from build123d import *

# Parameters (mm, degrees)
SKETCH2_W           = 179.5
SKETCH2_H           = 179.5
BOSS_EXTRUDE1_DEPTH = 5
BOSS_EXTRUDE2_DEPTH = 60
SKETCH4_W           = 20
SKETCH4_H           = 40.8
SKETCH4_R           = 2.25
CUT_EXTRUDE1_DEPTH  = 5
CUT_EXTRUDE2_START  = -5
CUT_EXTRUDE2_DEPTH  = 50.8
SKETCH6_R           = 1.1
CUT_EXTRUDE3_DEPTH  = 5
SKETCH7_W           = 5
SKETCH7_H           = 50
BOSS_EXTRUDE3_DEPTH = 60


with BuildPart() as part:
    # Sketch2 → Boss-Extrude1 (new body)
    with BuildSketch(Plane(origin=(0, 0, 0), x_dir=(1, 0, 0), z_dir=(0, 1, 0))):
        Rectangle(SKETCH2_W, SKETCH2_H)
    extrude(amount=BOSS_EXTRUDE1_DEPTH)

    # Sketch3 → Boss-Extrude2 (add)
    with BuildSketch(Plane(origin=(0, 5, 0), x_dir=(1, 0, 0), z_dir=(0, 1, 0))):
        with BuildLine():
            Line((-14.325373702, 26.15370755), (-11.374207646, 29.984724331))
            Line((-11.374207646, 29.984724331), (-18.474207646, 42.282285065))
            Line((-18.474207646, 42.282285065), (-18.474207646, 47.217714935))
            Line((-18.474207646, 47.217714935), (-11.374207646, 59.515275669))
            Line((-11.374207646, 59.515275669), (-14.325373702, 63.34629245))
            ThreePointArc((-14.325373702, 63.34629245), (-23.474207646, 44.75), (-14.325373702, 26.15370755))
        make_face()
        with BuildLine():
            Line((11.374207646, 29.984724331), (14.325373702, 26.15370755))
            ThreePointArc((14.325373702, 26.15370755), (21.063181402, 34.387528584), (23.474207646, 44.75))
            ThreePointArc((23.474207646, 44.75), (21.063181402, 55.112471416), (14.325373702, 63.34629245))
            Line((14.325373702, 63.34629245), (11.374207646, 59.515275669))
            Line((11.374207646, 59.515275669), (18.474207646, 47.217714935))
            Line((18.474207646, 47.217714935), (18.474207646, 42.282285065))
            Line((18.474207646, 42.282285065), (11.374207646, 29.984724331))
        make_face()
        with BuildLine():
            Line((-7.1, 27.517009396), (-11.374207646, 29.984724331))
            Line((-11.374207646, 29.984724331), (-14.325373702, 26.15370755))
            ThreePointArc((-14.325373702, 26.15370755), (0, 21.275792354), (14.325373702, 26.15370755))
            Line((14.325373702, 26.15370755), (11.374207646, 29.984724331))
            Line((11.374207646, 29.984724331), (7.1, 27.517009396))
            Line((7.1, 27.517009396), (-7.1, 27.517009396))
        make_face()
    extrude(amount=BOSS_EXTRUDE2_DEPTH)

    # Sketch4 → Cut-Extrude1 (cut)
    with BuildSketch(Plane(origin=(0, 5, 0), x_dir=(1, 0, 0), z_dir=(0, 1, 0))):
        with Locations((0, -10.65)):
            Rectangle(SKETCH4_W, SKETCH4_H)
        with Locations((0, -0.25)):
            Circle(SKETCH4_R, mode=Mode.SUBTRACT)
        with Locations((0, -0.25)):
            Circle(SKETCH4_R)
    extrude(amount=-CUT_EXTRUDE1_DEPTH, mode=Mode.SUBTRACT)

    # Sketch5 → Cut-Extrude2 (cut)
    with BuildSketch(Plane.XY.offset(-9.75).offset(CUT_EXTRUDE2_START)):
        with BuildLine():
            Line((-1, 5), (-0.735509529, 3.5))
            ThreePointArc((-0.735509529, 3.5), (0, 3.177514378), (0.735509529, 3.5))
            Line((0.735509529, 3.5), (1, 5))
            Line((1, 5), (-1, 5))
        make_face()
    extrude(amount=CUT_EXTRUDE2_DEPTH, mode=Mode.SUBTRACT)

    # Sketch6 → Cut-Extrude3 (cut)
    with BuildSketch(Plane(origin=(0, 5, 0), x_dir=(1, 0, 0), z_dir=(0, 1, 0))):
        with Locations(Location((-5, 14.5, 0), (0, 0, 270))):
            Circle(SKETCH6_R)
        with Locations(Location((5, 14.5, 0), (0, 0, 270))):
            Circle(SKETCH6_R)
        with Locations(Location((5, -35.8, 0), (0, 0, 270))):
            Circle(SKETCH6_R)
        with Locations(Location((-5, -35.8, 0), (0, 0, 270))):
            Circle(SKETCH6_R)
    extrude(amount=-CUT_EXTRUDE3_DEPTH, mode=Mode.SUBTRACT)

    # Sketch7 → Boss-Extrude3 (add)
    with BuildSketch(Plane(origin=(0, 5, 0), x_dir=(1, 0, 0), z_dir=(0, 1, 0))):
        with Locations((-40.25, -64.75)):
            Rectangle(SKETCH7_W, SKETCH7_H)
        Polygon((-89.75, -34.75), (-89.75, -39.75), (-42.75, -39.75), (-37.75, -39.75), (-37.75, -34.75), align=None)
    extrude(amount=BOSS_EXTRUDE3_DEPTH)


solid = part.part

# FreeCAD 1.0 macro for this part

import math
import FreeCAD as App
import Part
import Sketcher
from FreeCAD import Vector
Q = App.Units.Quantity

doc = App.newDocument("Part")
body = doc.addObject("PartDesign::Body", "Body")

# Sketch on XZ plane
sketch1 = body.newObject("Sketcher::SketchObject", "Sketch")
sketch1.AttachmentSupport = (doc.getObject("XZ_Plane"), [""])
sketch1.MapMode = "FlatFace"
sketch1.addGeometry([
    Part.LineSegment(Vector(-89.75, -89.75, 0), Vector(-89.75, 89.75, 0)),
    Part.LineSegment(Vector(-89.75, 89.75, 0), Vector(89.75, 89.75, 0)),
    Part.LineSegment(Vector(89.75, 89.75, 0), Vector(89.75, -89.75, 0)),
    Part.LineSegment(Vector(89.75, -89.75, 0), Vector(-89.75, -89.75, 0)),
], False)
sketch1.addConstraint([
    Sketcher.Constraint("Coincident", 0, 2, 1, 1),
    Sketcher.Constraint("Coincident", 1, 2, 2, 1),
    Sketcher.Constraint("Coincident", 2, 2, 3, 1),
    Sketcher.Constraint("Coincident", 3, 2, 0, 1),
    Sketcher.Constraint("Vertical", 0),
    Sketcher.Constraint("Horizontal", 1),
    Sketcher.Constraint("Vertical", 2),
    Sketcher.Constraint("Horizontal", 3),
    Sketcher.Constraint("Symmetric", 0, 2, 2, 2, -1, 1),
    Sketcher.Constraint("Equal", 3, 0),
    Sketcher.Constraint("DistanceX", 1, 1, 1, 2, 179.5),
])
pad1 = body.newObject("PartDesign::Pad", "Pad")
pad1.Profile = sketch1
pad1.Length = 5
pad1.Reversed = True

# Sketch on XZ plane
sketch2 = body.newObject("Sketcher::SketchObject", "Sketch001")
sketch2.AttachmentSupport = (doc.getObject("XZ_Plane"), [""])
sketch2.MapMode = "FlatFace"
sketch2.AttachmentOffset = App.Placement(Vector(0, 0, -5), App.Rotation())
sketch2.addGeometry([
    Part.LineSegment(Vector(-11.374208, -29.984724, 0), Vector(-18.474208, -42.282285, 0)),  # 0
    Part.LineSegment(Vector(-18.474208, -42.282285, 0), Vector(-18.474208, -47.217715, 0)),  # 1
    Part.LineSegment(Vector(-18.474208, -47.217715, 0), Vector(-11.374208, -59.515276, 0)),  # 2
    Part.LineSegment(Vector(-11.374208, -59.515276, 0), Vector(-14.325374, -63.346292, 0)),  # 3
    Part.ArcOfCircle(Part.Circle(Vector(0, -44.75, 0), Vector(0, 0, 1), 23.474208), math.radians(127.608317), math.radians(232.391683)),  # 4
    Part.ArcOfCircle(Part.Circle(Vector(0, -44.75, 0), Vector(0, 0, 1), 23.474208), math.radians(52.391683), math.radians(127.608317)),  # 5
    Part.ArcOfCircle(Part.Circle(Vector(0, -44.75, 0), Vector(0, 0, 1), 23.474208), math.radians(0), math.radians(52.391683)),  # 6
    Part.ArcOfCircle(Part.Circle(Vector(0, -44.75, 0), Vector(0, 0, 1), 23.474208), math.radians(-52.391683), math.radians(0)),  # 7
    Part.LineSegment(Vector(14.325374, -63.346292, 0), Vector(11.374208, -59.515276, 0)),  # 8
    Part.LineSegment(Vector(11.374208, -59.515276, 0), Vector(18.474208, -47.217715, 0)),  # 9
    Part.LineSegment(Vector(18.474208, -47.217715, 0), Vector(18.474208, -42.282285, 0)),  # 10
    Part.LineSegment(Vector(18.474208, -42.282285, 0), Vector(11.374208, -29.984724, 0)),  # 11
    Part.LineSegment(Vector(11.374208, -29.984724, 0), Vector(7.1, -27.517009, 0)),  # 12
    Part.LineSegment(Vector(7.1, -27.517009, 0), Vector(-7.1, -27.517009, 0)),  # 13
    Part.LineSegment(Vector(-7.1, -27.517009, 0), Vector(-11.374208, -29.984724, 0)),  # 14
], False)
sketch2.addConstraint([
    Sketcher.Constraint("Coincident", 0, 2, 1, 1),
    Sketcher.Constraint("Coincident", 1, 2, 2, 1),
    Sketcher.Constraint("Coincident", 2, 2, 3, 1),
    Sketcher.Constraint("Coincident", 3, 2, 4, 2),
    Sketcher.Constraint("Tangent", 4, 1, 5, 2),
    Sketcher.Constraint("Tangent", 5, 1, 6, 2),
    Sketcher.Constraint("Tangent", 6, 1, 7, 2),
    Sketcher.Constraint("Coincident", 7, 1, 8, 1),
    Sketcher.Constraint("Coincident", 8, 2, 9, 1),
    Sketcher.Constraint("Coincident", 9, 2, 10, 1),
    Sketcher.Constraint("Coincident", 10, 2, 11, 1),
    Sketcher.Constraint("Coincident", 11, 2, 12, 1),
    Sketcher.Constraint("Coincident", 12, 2, 13, 1),
    Sketcher.Constraint("Coincident", 13, 2, 14, 1),
    Sketcher.Constraint("Coincident", 14, 2, 0, 1),
    Sketcher.Constraint("Vertical", 1),
    Sketcher.Constraint("Vertical", 10),
    Sketcher.Constraint("Horizontal", 13),
    Sketcher.Constraint("Coincident", 6, 3, 4, 3),
    Sketcher.Constraint("Equal", 6, 7),
    Sketcher.Constraint("Symmetric", 4, 1, 5, 1, -2),
    Sketcher.Constraint("Symmetric", 2, 2, 8, 2, -2),
    Sketcher.Constraint("Symmetric", 1, 2, 9, 2, -2),
    Sketcher.Constraint("Symmetric", 11, 2, 14, 2, -2),
    Sketcher.Constraint("Parallel", 0, 9),
    Sketcher.Constraint("Parallel", 2, 11),
    Sketcher.Constraint("Perpendicular", 9, 12),
    Sketcher.Constraint("Perpendicular", 11, 14),
    Sketcher.Constraint("Horizontal", 7, 3, 6, 1),
    Sketcher.Constraint("Horizontal", 3, 2, 7, 1),
    Sketcher.Constraint("Vertical", 3, 2, 4, 1),
    Sketcher.Constraint("Vertical", 8, 2, 11, 2),
    Sketcher.Constraint("Angle", 0, Q("-120 deg")),
    Sketcher.Constraint("DistanceX", 13, 2, 13, 1, 14.2),
    Sketcher.Constraint("DistanceX", 9, 2, 6, 1, 5.0),
    Sketcher.Constraint("Distance", 0, 14.2),
    Sketcher.Constraint("DistanceY", 4, 3, -1, 1, 44.75),
    Sketcher.Constraint("Radius", 4, 23.474208),
    Sketcher.Constraint("DistanceY", 1, 2, 1, 1, 4.93543),
    Sketcher.Constraint("DistanceY", 12, 2, 5, 1, 1.363302),
    Sketcher.Constraint("DistanceY", 12, 2, -1, 1, 27.517009),
])
pad2 = body.newObject("PartDesign::Pad", "Pad001")
pad2.Profile = sketch2
pad2.Length = 60
pad2.Reversed = True

# Sketch on XZ plane
sketch3 = body.newObject("Sketcher::SketchObject", "Sketch002")
sketch3.AttachmentSupport = (doc.getObject("XZ_Plane"), [""])
sketch3.MapMode = "FlatFace"
sketch3.AttachmentOffset = App.Placement(Vector(0, 0, -5), App.Rotation())
sketch3.addGeometry([
    Part.LineSegment(Vector(-10, -9.75, 0), Vector(-10, 31.05, 0)),
    Part.LineSegment(Vector(-10, 31.05, 0), Vector(10, 31.05, 0)),
    Part.LineSegment(Vector(10, 31.05, 0), Vector(10, -9.75, 0)),
    Part.LineSegment(Vector(10, -9.75, 0), Vector(-10, -9.75, 0)),
], False)
sketch3.addConstraint([
    Sketcher.Constraint("Coincident", 0, 2, 1, 1),
    Sketcher.Constraint("Coincident", 1, 2, 2, 1),
    Sketcher.Constraint("Coincident", 2, 2, 3, 1),
    Sketcher.Constraint("Coincident", 3, 2, 0, 1),
    Sketcher.Constraint("Vertical", 0),
    Sketcher.Constraint("Horizontal", 1),
    Sketcher.Constraint("Vertical", 2),
    Sketcher.Constraint("Horizontal", 3),
    Sketcher.Constraint("DistanceX", 1, 1, 1, 2, 20.0),
    Sketcher.Constraint("DistanceY", 0, 1, 0, 2, 40.8),
    Sketcher.Constraint("DistanceX", 0, 2, -1, 1, 10.0),
    Sketcher.Constraint("DistanceY", -1, 1, 0, 2, 31.05),
])
pocket1 = body.newObject("PartDesign::Pocket", "Pocket")
pocket1.Profile = sketch3
pocket1.Length = 5
pocket1.Reversed = True

# Sketch on XY plane
sketch4 = body.newObject("Sketcher::SketchObject", "Sketch003")
sketch4.AttachmentSupport = (doc.getObject("XY_Plane"), [""])
sketch4.MapMode = "FlatFace"
sketch4.AttachmentOffset = App.Placement(Vector(0, 0, -14.75), App.Rotation())
sketch4.addGeometry([
    Part.LineSegment(Vector(-1, 5, 0), Vector(-0.73551, 3.5, 0)),
    Part.ArcOfCircle(Part.Circle(Vector(0, 4.177514, 0), Vector(0, 0, 1), 1), math.radians(-137.350288), math.radians(-42.649712)),
    Part.LineSegment(Vector(0.73551, 3.5, 0), Vector(1, 5, 0)),
    Part.LineSegment(Vector(1, 5, 0), Vector(-1, 5, 0)),
], False)
sketch4.addConstraint([
    Sketcher.Constraint("Coincident", 0, 2, 1, 1),
    Sketcher.Constraint("Coincident", 1, 2, 2, 1),
    Sketcher.Constraint("Coincident", 2, 2, 3, 1),
    Sketcher.Constraint("Coincident", 3, 2, 0, 1),
    Sketcher.Constraint("Horizontal", 3),
    Sketcher.Constraint("Symmetric", 0, 2, 1, 2, -2),
    Sketcher.Constraint("Equal", 0, 2),
    Sketcher.Constraint("Radius", 1, 1.0),
    Sketcher.Constraint("DistanceX", 3, 2, 3, 1, 2.0),
    Sketcher.Constraint("Angle", 0, Q("-80 deg")),
    Sketcher.Constraint("DistanceY", -1, 1, 2, 2, 5.0),
    Sketcher.Constraint("DistanceY", -1, 1, 0, 2, 3.5),
])
pocket2 = body.newObject("PartDesign::Pocket", "Pocket001")
pocket2.Profile = sketch4
pocket2.Length = 50.8
pocket2.Reversed = True

# Sketch on XZ plane
sketch5 = body.newObject("Sketcher::SketchObject", "Sketch004")
sketch5.AttachmentSupport = (doc.getObject("XZ_Plane"), [""])
sketch5.MapMode = "FlatFace"
sketch5.AttachmentOffset = App.Placement(Vector(0, 0, -5), App.Rotation())
sketch5.addGeometry([
    Part.Circle(Vector(-5, -14.5, 0), Vector(0, 0, 1), 1.1),
    Part.Circle(Vector(5, -14.5, 0), Vector(0, 0, 1), 1.1),
    Part.Circle(Vector(5, 35.8, 0), Vector(0, 0, 1), 1.1),
    Part.Circle(Vector(-5, 35.8, 0), Vector(0, 0, 1), 1.1),
], False)
sketch5.addConstraint([
    Sketcher.Constraint("Equal", 0, 1),
    Sketcher.Constraint("Equal", 1, 2),
    Sketcher.Constraint("Equal", 2, 3),
    Sketcher.Constraint("Symmetric", 0, 3, 1, 3, -2),
    Sketcher.Constraint("Symmetric", 2, 3, 3, 3, -2),
    Sketcher.Constraint("Vertical", 1, 3, 2, 3),
    Sketcher.Constraint("Diameter", 0, 2.2),
    Sketcher.Constraint("DistanceX", 0, 3, -1, 1, 5.0),
    Sketcher.Constraint("DistanceY", 0, 3, -1, 1, 14.5),
    Sketcher.Constraint("DistanceY", -1, 1, 2, 3, 35.8),
])
pocket3 = body.newObject("PartDesign::Pocket", "Pocket002")
pocket3.Profile = sketch5
pocket3.Length = 5
pocket3.Reversed = True

# Sketch on XZ plane
sketch6 = body.newObject("Sketcher::SketchObject", "Sketch005")
sketch6.AttachmentSupport = (doc.getObject("XZ_Plane"), [""])
sketch6.MapMode = "FlatFace"
sketch6.AttachmentOffset = App.Placement(Vector(0, 0, -5), App.Rotation())
sketch6.addGeometry([
    Part.LineSegment(Vector(-42.75, 39.75, 0), Vector(-42.75, 89.75, 0)),  # 0
    Part.LineSegment(Vector(-42.75, 89.75, 0), Vector(-37.75, 89.75, 0)),  # 1
    Part.LineSegment(Vector(-37.75, 89.75, 0), Vector(-37.75, 34.75, 0)),  # 2
    Part.LineSegment(Vector(-37.75, 34.75, 0), Vector(-89.75, 34.75, 0)),  # 3
    Part.LineSegment(Vector(-89.75, 34.75, 0), Vector(-89.75, 39.75, 0)),  # 4
    Part.LineSegment(Vector(-89.75, 39.75, 0), Vector(-42.75, 39.75, 0)),  # 5
], False)
sketch6.addConstraint([
    Sketcher.Constraint("Coincident", 0, 2, 1, 1),
    Sketcher.Constraint("Coincident", 1, 2, 2, 1),
    Sketcher.Constraint("Coincident", 2, 2, 3, 1),
    Sketcher.Constraint("Coincident", 3, 2, 4, 1),
    Sketcher.Constraint("Coincident", 4, 2, 5, 1),
    Sketcher.Constraint("Coincident", 5, 2, 0, 1),
    Sketcher.Constraint("Vertical", 0),
    Sketcher.Constraint("Horizontal", 1),
    Sketcher.Constraint("Vertical", 2),
    Sketcher.Constraint("Horizontal", 3),
    Sketcher.Constraint("Vertical", 4),
    Sketcher.Constraint("Horizontal", 5),
    Sketcher.Constraint("Equal", 1, 4),
    Sketcher.Constraint("DistanceX", 1, 1, 1, 2, 5.0),
    Sketcher.Constraint("DistanceX", 3, 2, 3, 1, 52.0),
    Sketcher.Constraint("DistanceY", 0, 1, 0, 2, 50.0),
    Sketcher.Constraint("DistanceX", 0, 2, -1, 1, 42.75),
    Sketcher.Constraint("DistanceY", -1, 1, 0, 2, 89.75),
])
pad3 = body.newObject("PartDesign::Pad", "Pad002")
pad3.Profile = sketch6
pad3.Length = 60
pad3.Reversed = True

doc.recompute()
